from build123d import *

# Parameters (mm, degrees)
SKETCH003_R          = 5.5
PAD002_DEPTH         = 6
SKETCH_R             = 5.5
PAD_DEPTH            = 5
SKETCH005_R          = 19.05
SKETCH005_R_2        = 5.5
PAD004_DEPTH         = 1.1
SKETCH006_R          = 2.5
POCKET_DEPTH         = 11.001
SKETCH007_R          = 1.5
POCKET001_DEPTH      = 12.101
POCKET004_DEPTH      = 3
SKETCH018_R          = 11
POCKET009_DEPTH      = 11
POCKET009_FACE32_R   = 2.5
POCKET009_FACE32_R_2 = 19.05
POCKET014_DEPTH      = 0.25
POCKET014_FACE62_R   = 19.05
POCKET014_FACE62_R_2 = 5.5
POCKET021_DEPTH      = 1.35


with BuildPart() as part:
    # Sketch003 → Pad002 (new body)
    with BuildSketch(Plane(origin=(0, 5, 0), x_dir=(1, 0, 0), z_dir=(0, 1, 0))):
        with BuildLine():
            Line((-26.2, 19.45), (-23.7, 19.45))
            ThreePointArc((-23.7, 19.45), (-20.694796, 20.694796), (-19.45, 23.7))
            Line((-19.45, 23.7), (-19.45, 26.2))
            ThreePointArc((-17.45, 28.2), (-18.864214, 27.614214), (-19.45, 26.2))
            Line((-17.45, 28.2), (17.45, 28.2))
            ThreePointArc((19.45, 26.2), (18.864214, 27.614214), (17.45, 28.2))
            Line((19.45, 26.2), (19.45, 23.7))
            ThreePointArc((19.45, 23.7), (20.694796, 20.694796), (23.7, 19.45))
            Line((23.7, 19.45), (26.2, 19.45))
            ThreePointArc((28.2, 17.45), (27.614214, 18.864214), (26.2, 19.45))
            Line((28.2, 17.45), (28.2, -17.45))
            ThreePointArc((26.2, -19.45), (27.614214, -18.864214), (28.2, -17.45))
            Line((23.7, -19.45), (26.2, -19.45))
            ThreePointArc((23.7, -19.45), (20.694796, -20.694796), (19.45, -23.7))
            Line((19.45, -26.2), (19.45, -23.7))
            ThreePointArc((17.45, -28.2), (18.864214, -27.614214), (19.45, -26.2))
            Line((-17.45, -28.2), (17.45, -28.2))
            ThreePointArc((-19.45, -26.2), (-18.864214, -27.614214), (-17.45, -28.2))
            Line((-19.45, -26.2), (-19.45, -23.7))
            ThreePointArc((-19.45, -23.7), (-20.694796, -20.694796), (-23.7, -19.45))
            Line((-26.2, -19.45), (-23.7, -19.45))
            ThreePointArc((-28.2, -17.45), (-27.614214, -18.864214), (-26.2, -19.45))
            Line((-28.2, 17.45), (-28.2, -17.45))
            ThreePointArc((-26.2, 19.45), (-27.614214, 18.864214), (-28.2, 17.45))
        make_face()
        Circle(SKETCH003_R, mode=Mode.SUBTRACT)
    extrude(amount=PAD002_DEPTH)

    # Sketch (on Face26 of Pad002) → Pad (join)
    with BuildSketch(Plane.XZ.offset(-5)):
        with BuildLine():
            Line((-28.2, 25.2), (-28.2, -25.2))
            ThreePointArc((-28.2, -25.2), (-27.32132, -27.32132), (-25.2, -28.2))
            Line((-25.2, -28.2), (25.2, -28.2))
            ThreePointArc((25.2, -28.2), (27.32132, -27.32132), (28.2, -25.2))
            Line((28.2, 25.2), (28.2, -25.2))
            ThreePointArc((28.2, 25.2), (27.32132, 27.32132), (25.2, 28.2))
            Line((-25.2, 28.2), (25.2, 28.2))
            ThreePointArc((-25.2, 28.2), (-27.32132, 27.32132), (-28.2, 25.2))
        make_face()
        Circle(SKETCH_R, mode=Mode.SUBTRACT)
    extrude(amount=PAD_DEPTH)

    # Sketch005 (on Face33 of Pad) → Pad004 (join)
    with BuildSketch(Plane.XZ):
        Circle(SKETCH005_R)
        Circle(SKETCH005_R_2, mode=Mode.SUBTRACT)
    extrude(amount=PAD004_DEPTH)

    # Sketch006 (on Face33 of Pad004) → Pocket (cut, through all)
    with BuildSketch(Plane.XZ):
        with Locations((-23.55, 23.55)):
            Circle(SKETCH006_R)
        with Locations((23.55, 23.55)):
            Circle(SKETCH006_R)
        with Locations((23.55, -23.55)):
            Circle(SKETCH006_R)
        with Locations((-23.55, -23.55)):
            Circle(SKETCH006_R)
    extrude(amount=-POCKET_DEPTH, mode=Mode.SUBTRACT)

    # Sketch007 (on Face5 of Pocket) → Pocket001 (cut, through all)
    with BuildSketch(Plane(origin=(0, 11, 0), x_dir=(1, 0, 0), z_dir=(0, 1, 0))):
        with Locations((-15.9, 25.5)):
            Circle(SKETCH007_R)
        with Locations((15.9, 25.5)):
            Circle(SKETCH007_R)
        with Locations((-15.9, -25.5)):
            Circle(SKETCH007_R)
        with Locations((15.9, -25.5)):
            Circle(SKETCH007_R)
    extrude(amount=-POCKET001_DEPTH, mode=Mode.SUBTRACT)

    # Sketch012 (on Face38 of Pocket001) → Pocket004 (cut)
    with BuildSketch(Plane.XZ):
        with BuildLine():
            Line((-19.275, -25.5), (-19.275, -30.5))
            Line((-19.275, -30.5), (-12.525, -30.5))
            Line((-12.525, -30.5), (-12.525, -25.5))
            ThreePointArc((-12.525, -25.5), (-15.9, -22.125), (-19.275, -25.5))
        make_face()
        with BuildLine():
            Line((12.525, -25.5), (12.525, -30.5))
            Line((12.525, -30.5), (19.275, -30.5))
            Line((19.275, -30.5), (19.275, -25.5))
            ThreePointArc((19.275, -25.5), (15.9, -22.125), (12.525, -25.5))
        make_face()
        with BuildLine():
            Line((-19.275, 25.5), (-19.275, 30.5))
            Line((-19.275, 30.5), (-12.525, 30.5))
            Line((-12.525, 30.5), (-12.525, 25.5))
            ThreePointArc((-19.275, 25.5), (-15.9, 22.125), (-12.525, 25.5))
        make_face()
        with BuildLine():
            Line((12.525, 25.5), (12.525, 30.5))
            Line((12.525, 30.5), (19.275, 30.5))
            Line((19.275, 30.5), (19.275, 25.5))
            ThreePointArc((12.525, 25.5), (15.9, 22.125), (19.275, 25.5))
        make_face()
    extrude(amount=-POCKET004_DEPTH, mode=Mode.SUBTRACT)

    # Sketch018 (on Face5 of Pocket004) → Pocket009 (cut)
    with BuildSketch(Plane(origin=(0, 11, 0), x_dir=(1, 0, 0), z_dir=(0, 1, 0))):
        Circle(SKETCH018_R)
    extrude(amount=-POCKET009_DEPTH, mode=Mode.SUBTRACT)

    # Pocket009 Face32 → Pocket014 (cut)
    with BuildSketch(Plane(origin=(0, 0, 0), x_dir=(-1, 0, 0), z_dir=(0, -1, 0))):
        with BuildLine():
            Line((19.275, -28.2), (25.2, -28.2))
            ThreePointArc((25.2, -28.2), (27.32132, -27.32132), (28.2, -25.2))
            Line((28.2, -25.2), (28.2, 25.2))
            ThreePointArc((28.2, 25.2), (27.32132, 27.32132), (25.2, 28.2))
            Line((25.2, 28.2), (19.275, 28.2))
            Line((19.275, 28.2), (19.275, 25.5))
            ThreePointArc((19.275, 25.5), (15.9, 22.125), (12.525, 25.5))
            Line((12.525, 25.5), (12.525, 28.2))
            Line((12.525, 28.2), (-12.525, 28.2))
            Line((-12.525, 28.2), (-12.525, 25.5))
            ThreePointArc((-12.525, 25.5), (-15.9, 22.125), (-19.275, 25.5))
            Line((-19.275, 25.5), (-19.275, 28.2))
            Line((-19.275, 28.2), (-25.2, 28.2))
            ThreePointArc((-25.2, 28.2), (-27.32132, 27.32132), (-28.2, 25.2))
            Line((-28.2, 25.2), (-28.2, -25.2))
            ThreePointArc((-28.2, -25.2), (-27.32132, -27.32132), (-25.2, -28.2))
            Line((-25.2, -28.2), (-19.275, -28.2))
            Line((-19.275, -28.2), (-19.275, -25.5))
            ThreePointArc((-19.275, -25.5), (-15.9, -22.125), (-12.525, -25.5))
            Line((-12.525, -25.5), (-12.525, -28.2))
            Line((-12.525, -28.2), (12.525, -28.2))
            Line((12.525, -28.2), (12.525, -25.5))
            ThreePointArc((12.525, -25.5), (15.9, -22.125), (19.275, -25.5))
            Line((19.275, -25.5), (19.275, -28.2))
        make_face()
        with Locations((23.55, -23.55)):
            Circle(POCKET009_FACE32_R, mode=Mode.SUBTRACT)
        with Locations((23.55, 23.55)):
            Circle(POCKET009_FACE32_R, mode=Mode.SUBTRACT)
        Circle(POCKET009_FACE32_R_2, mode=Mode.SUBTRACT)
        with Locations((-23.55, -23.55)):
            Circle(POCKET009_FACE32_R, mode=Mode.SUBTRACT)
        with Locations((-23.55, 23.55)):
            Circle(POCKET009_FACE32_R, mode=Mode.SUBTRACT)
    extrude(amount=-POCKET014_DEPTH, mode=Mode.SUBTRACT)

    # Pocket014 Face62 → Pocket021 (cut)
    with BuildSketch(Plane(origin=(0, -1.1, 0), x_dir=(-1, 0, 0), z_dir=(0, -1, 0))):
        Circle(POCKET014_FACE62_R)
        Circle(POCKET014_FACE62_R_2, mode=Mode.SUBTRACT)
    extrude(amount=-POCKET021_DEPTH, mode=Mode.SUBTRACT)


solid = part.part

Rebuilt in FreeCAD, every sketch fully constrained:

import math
import FreeCAD as App
import Part
import Sketcher

doc = App.newDocument("Part")
params = doc.addObject("Spreadsheet::Sheet", "Params")
for row, (alias, value) in enumerate([
    ("sketch1_diameter", "11 mm"),
    ("sketch1_radius", "1.999999 mm"),
    ("sketch1_radius2", "4.249999 mm"),
    ("sketch1_width", "2.5 mm"),
    ("sketch1_width2", "34.9 mm"),
    ("pad1_length", "6 mm"),
    ("sketch2_diameter", "11 mm"),
    ("sketch2_radius", "3.000001 mm"),
    ("sketch2_width", "50.4 mm"),
    ("pad2_length", "5 mm"),
    ("sketch3_diameter", "11 mm"),
    ("sketch3_diameter2", "38.1 mm"),
    ("pad3_length", "1.1 mm"),
    ("sketch4_diameter", "5 mm"),
    ("sketch5_diameter", "3 mm"),
    ("sketch6_height", "5 mm"),
    ("pocket3_length", "3 mm"),
    ("sketch7_diameter", "22 mm"),
    ("pocket4_length", "11 mm"),
    ("sketch8_diameter", "5 mm"),
    ("sketch8_radius", "3.000001 mm"),
    ("sketch8_diameter2", "38.1 mm"),
    ("sketch8_height", "50.4 mm"),
    ("sketch8_height2", "2.7 mm"),
    ("pocket5_length", "0.25 mm"),
    ("sketch9_diameter", "11 mm"),
    ("sketch9_diameter2", "38.1 mm"),
    ("pocket6_length", "1.35 mm"),
], start=1):
    params.set(f"A{row}", alias)
    params.set(f"B{row}", "=" + value)
    params.setAlias(f"B{row}", alias)

body = doc.addObject("PartDesign::Body", "Body")

sketch1 = body.newObject("Sketcher::SketchObject", "Sketch")
sketch1.AttachmentSupport = (doc.getObject("XZ_Plane"), [""])
sketch1.MapMode = "FlatFace"
sketch1.AttachmentOffset = App.Placement(App.Vector(0, 0, -5), App.Rotation())
sketch1.addGeometry([
    Part.LineSegment(App.Vector(-23.7, -19.45, 0), App.Vector(-26.2, -19.45, 0)),
    Part.ArcOfCircle(Part.Circle(App.Vector(-26.200001, -17.450001, 0), App.Vector(0, 0, 1), 1.999999), math.radians(179.999957), math.radians(270.000043)),
    Part.LineSegment(App.Vector(-28.2, -17.45, 0), App.Vector(-28.2, 17.45, 0)),
    Part.ArcOfCircle(Part.Circle(App.Vector(-26.200001, 17.450001, 0), App.Vector(0, 0, 1), 1.999999), math.radians(89.999957), math.radians(180.000043)),
    Part.LineSegment(App.Vector(-26.2, 19.45, 0), App.Vector(-23.7, 19.45, 0)),
    Part.ArcOfCircle(Part.Circle(App.Vector(-23.699999, 23.699999, 0), App.Vector(0, 0, 1), 4.249999), math.radians(-90.000008), math.radians(0.000008)),
    Part.LineSegment(App.Vector(-19.45, 23.7, 0), App.Vector(-19.45, 26.2, 0)),
    Part.ArcOfCircle(Part.Circle(App.Vector(-17.450001, 26.200001, 0), App.Vector(0, 0, 1), 1.999999), math.radians(89.999957), math.radians(180.000043)),
    Part.LineSegment(App.Vector(-17.45, 28.2, 0), App.Vector(17.45, 28.2, 0)),
    Part.ArcOfCircle(Part.Circle(App.Vector(17.450001, 26.200001, 0), App.Vector(0, 0, 1), 1.999999), math.radians(-0.000043), math.radians(90.000043)),
    Part.LineSegment(App.Vector(19.45, 26.2, 0), App.Vector(19.45, 23.7, 0)),
    Part.ArcOfCircle(Part.Circle(App.Vector(23.699999, 23.699999, 0), App.Vector(0, 0, 1), 4.249999), math.radians(179.999992), math.radians(270.000008)),
    Part.LineSegment(App.Vector(23.7, 19.45, 0), App.Vector(26.2, 19.45, 0)),
    Part.ArcOfCircle(Part.Circle(App.Vector(26.200001, 17.450001, 0), App.Vector(0, 0, 1), 1.999999), math.radians(-0.000043), math.radians(90.000043)),
    Part.LineSegment(App.Vector(28.2, 17.45, 0), App.Vector(28.2, -17.45, 0)),
    Part.ArcOfCircle(Part.Circle(App.Vector(26.200001, -17.450001, 0), App.Vector(0, 0, 1), 1.999999), math.radians(-90.000043), math.radians(0.000043)),
    Part.LineSegment(App.Vector(26.2, -19.45, 0), App.Vector(23.7, -19.45, 0)),
    Part.ArcOfCircle(Part.Circle(App.Vector(23.699999, -23.699999, 0), App.Vector(0, 0, 1), 4.249999), math.radians(89.999992), math.radians(180.000008)),
    Part.LineSegment(App.Vector(19.45, -23.7, 0), App.Vector(19.45, -26.2, 0)),
    Part.ArcOfCircle(Part.Circle(App.Vector(17.450001, -26.200001, 0), App.Vector(0, 0, 1), 1.999999), math.radians(-90.000043), math.radians(0.000043)),
    Part.LineSegment(App.Vector(17.45, -28.2, 0), App.Vector(-17.45, -28.2, 0)),
    Part.ArcOfCircle(Part.Circle(App.Vector(-17.450001, -26.200001, 0), App.Vector(0, 0, 1), 1.999999), math.radians(179.999957), math.radians(270.000043)),
    Part.LineSegment(App.Vector(-19.45, -26.2, 0), App.Vector(-19.45, -23.7, 0)),
    Part.ArcOfCircle(Part.Circle(App.Vector(-23.699999, -23.699999, 0), App.Vector(0, 0, 1), 4.249999), math.radians(-0.000008), math.radians(90.000008)),
    Part.Circle(App.Vector(0, 0, 0), App.Vector(0, 0, 1), 5.5),
], False)
sketch1.addConstraint([
    Sketcher.Constraint("Tangent", 0, 2, 1, 2),
    Sketcher.Constraint("Tangent", 1, 1, 2, 1),
    Sketcher.Constraint("Tangent", 2, 2, 3, 2),
    Sketcher.Constraint("Tangent", 3, 1, 4, 1),
    Sketcher.Constraint("Tangent", 4, 2, 5, 1),
    Sketcher.Constraint("Tangent", 5, 2, 6, 1),
    Sketcher.Constraint("Tangent", 6, 2, 7, 2),
    Sketcher.Constraint("Tangent", 7, 1, 8, 1),
    Sketcher.Constraint("Tangent", 8, 2, 9, 2),
    Sketcher.Constraint("Tangent", 9, 1, 10, 1),
    Sketcher.Constraint("Tangent", 10, 2, 11, 1),
    Sketcher.Constraint("Tangent", 11, 2, 12, 1),
    Sketcher.Constraint("Tangent", 12, 2, 13, 2),
    Sketcher.Constraint("Tangent", 13, 1, 14, 1),
    Sketcher.Constraint("Tangent", 14, 2, 15, 2),
    Sketcher.Constraint("Tangent", 15, 1, 16, 1),
    Sketcher.Constraint("Tangent", 16, 2, 17, 1),
    Sketcher.Constraint("Tangent", 17, 2, 18, 1),
    Sketcher.Constraint("Tangent", 18, 2, 19, 2),
    Sketcher.Constraint("Tangent", 19, 1, 20, 1),
    Sketcher.Constraint("Tangent", 20, 2, 21, 2),
    Sketcher.Constraint("Tangent", 21, 1, 22, 1),
    Sketcher.Constraint("Tangent", 22, 2, 23, 1),
    Sketcher.Constraint("Tangent", 23, 2, 0, 1),
    Sketcher.Constraint("Horizontal", 0),
    Sketcher.Constraint("Vertical", 2),
    Sketcher.Constraint("Horizontal", 4),
    Sketcher.Constraint("Vertical", 6),
    Sketcher.Constraint("Horizontal", 8),
    Sketcher.Constraint("Vertical", 10),
    Sketcher.Constraint("Horizontal", 12),
    Sketcher.Constraint("Vertical", 14),
    Sketcher.Constraint("Horizontal", 16),
    Sketcher.Constraint("Vertical", 18),
    Sketcher.Constraint("Horizontal", 20),
    Sketcher.Constraint("Vertical", 22),
    Sketcher.Constraint("Coincident", 24, 3, -1, 1),
    Sketcher.Constraint("Equal", 1, 3),
    Sketcher.Constraint("Equal", 3, 7),
    Sketcher.Constraint("Equal", 7, 9),
    Sketcher.Constraint("Equal", 5, 11),
    Sketcher.Constraint("Equal", 9, 13),
    Sketcher.Constraint("Equal", 13, 15),
    Sketcher.Constraint("Equal", 11, 17),
    Sketcher.Constraint("Equal", 15, 19),
    Sketcher.Constraint("Equal", 19, 21),
    Sketcher.Constraint("Equal", 17, 23),
    Sketcher.Constraint("Symmetric", 1, 3, 13, 3, -1, 1),
    Sketcher.Constraint("Symmetric", 5, 3, 17, 3, -1, 1),
    Sketcher.Constraint("Symmetric", 9, 3, 21, 3, -1, 1),
    Sketcher.Constraint("Symmetric", 5, 3, 11, 3, -2),
    Sketcher.Constraint("Equal", 20, 2),
    Sketcher.Constraint("Equal", 16, 6),
    Sketcher.Constraint("Diameter", 24, 11.0),
    Sketcher.Constraint("Radius", 1, 1.999999),
    Sketcher.Constraint("Radius", 5, 4.249999),
    Sketcher.Constraint("DistanceX", 0, 2, 0, 1, 2.5),
    Sketcher.Constraint("DistanceX", 8, 1, 8, 2, 34.9),
])
sketch1.setExpression("Constraints[53]", "Params.sketch1_diameter")
sketch1.setExpression("Constraints[54]", "Params.sketch1_radius")
sketch1.setExpression("Constraints[55]", "Params.sketch1_radius2")
sketch1.setExpression("Constraints[56]", "Params.sketch1_width")
sketch1.setExpression("Constraints[57]", "Params.sketch1_width2")
pad1 = body.newObject("PartDesign::Pad", "Pad")
pad1.Profile = sketch1
pad1.setExpression("Length", "Params.pad1_length")
pad1.Reversed = True

sketch2 = body.newObject("Sketcher::SketchObject", "Sketch001")
sketch2.AttachmentSupport = (doc.getObject("XZ_Plane"), [""])
sketch2.MapMode = "FlatFace"
sketch2.AttachmentOffset = App.Placement(App.Vector(0, 0, -5), App.Rotation())
sketch2.addGeometry([
    Part.LineSegment(App.Vector(-28.2, 25.2, 0), App.Vector(-28.2, -25.2, 0)),
    Part.ArcOfCircle(Part.Circle(App.Vector(-25.199999, -25.199999, 0), App.Vector(0, 0, 1), 3.000001), math.radians(-179.999978), math.radians(-90.000022)),
    Part.LineSegment(App.Vector(-25.2, -28.2, 0), App.Vector(25.2, -28.2, 0)),
    Part.ArcOfCircle(Part.Circle(App.Vector(25.199999, -25.199999, 0), App.Vector(0, 0, 1), 3.000001), math.radians(-89.999978), math.radians(-0.000022)),
    Part.LineSegment(App.Vector(28.2, -25.2, 0), App.Vector(28.2, 25.2, 0)),
    Part.ArcOfCircle(Part.Circle(App.Vector(25.199999, 25.199999, 0), App.Vector(0, 0, 1), 3.000001), math.radians(0.000022), math.radians(89.999978)),
    Part.LineSegment(App.Vector(25.2, 28.2, 0), App.Vector(-25.2, 28.2, 0)),
    Part.ArcOfCircle(Part.Circle(App.Vector(-25.199999, 25.199999, 0), App.Vector(0, 0, 1), 3.000001), math.radians(90.000022), math.radians(179.999978)),
    Part.Circle(App.Vector(0, 0, 0), App.Vector(0, 0, 1), 5.5),
], False)
sketch2.addConstraint([
    Sketcher.Constraint("Tangent", 0, 2, 1, 1),
    Sketcher.Constraint("Tangent", 1, 2, 2, 1),
    Sketcher.Constraint("Tangent", 2, 2, 3, 1),
    Sketcher.Constraint("Tangent", 3, 2, 4, 1),
    Sketcher.Constraint("Tangent", 4, 2, 5, 1),
    Sketcher.Constraint("Tangent", 5, 2, 6, 1),
    Sketcher.Constraint("Tangent", 6, 2, 7, 1),
    Sketcher.Constraint("Tangent", 7, 2, 0, 1),
    Sketcher.Constraint("Vertical", 0),
    Sketcher.Constraint("Horizontal", 2),
    Sketcher.Constraint("Vertical", 4),
    Sketcher.Constraint("Horizontal", 6),
    Sketcher.Constraint("Coincident", 8, 3, -1, 1),
    Sketcher.Constraint("Equal", 1, 3),
    Sketcher.Constraint("Equal", 3, 5),
    Sketcher.Constraint("Equal", 5, 7),
    Sketcher.Constraint("Symmetric", 1, 3, 5, 3, -1, 1),
    Sketcher.Constraint("Equal", 6, 0),
    Sketcher.Constraint("Diameter", 8, 11.0),
    Sketcher.Constraint("Radius", 1, 3.000001),
    Sketcher.Constraint("DistanceX", 2, 1, 2, 2, 50.4),
])
sketch2.setExpression("Constraints[18]", "Params.sketch2_diameter")
sketch2.setExpression("Constraints[19]", "Params.sketch2_radius")
sketch2.setExpression("Constraints[20]", "Params.sketch2_width")
pad2 = body.newObject("PartDesign::Pad", "Pad001")
pad2.Profile = sketch2
pad2.setExpression("Length", "Params.pad2_length")

sketch3 = body.newObject("Sketcher::SketchObject", "Sketch002")
sketch3.AttachmentSupport = (doc.getObject("XZ_Plane"), [""])
sketch3.MapMode = "FlatFace"
sketch3.addGeometry([
    Part.Circle(App.Vector(0, 0, 0), App.Vector(0, 0, 1), 19.05),
    Part.Circle(App.Vector(0, 0, 0), App.Vector(0, 0, 1), 5.5),
], False)
sketch3.addConstraint([
    Sketcher.Constraint("Coincident", 0, 3, -1, 1),
    Sketcher.Constraint("Coincident", 1, 3, -1, 1),
    Sketcher.Constraint("Diameter", 1, 11.0),
    Sketcher.Constraint("Diameter", 0, 38.1),
])
sketch3.setExpression("Constraints[2]", "Params.sketch3_diameter")
sketch3.setExpression("Constraints[3]", "Params.sketch3_diameter2")
pad3 = body.newObject("PartDesign::Pad", "Pad002")
pad3.Profile = sketch3
pad3.setExpression("Length", "Params.pad3_length")

sketch4 = body.newObject("Sketcher::SketchObject", "Sketch003")
sketch4.AttachmentSupport = (doc.getObject("XZ_Plane"), [""])
sketch4.MapMode = "FlatFace"
sketch4.addGeometry([
    Part.Circle(App.Vector(-23.55, 23.55, 0), App.Vector(0, 0, 1), 2.5),
    Part.Circle(App.Vector(23.55, 23.55, 0), App.Vector(0, 0, 1), 2.5),
    Part.Circle(App.Vector(23.55, -23.55, 0), App.Vector(0, 0, 1), 2.5),
    Part.Circle(App.Vector(-23.55, -23.55, 0), App.Vector(0, 0, 1), 2.5),
], False)
sketch4.addConstraint([
    Sketcher.Constraint("Equal", 0, 1),
    Sketcher.Constraint("Equal", 1, 2),
    Sketcher.Constraint("Equal", 2, 3),
    Sketcher.Constraint("Symmetric", 0, 3, 2, 3, -1, 1),
    Sketcher.Constraint("Symmetric", 1, 3, 3, 3, -1, 1),
    Sketcher.Constraint("Symmetric", 0, 3, 1, 3, -2),
    Sketcher.Constraint("Diameter", 0, 5.0),
    Sketcher.Constraint("DistanceX", 0, 3, 1, 3, 47.1),
    Sketcher.Constraint("DistanceY", 2, 3, 1, 3, 47.1),
])
sketch4.setExpression("Constraints[6]", "Params.sketch4_diameter")
pocket1 = body.newObject("PartDesign::Pocket", "Pocket")
pocket1.Profile = sketch4
pocket1.Type = "ThroughAll"

sketch5 = body.newObject("Sketcher::SketchObject", "Sketch004")
sketch5.AttachmentSupport = (doc.getObject("XZ_Plane"), [""])
sketch5.MapMode = "FlatFace"
sketch5.AttachmentOffset = App.Placement(App.Vector(0, 0, -11), App.Rotation())
sketch5.addGeometry([
    Part.Circle(App.Vector(-15.9, -25.5, 0), App.Vector(0, 0, 1), 1.5),
    Part.Circle(App.Vector(15.9, -25.5, 0), App.Vector(0, 0, 1), 1.5),
    Part.Circle(App.Vector(-15.9, 25.5, 0), App.Vector(0, 0, 1), 1.5),
    Part.Circle(App.Vector(15.9, 25.5, 0), App.Vector(0, 0, 1), 1.5),
], False)
sketch5.addConstraint([
    Sketcher.Constraint("Equal", 0, 1),
    Sketcher.Constraint("Equal", 1, 2),
    Sketcher.Constraint("Equal", 2, 3),
    Sketcher.Constraint("Symmetric", 1, 3, 2, 3, -1, 1),
    Sketcher.Constraint("Symmetric", 0, 3, 3, 3, -1, 1),
    Sketcher.Constraint("Symmetric", 0, 3, 1, 3, -2),
    Sketcher.Constraint("Diameter", 0, 3.0),
    Sketcher.Constraint("DistanceY", 0, 3, 2, 3, 51.0),
    Sketcher.Constraint("DistanceX", 0, 3, -1, 1, 15.9),
])
sketch5.setExpression("Constraints[6]", "Params.sketch5_diameter")
pocket2 = body.newObject("PartDesign::Pocket", "Pocket001")
pocket2.Profile = sketch5
pocket2.Type = "ThroughAll"
pocket2.Reversed = True

sketch6 = body.newObject("Sketcher::SketchObject", "Sketch005")
sketch6.AttachmentSupport = (doc.getObject("XZ_Plane"), [""])
sketch6.MapMode = "FlatFace"
sketch6.addGeometry([
    Part.LineSegment(App.Vector(-19.275, -25.5, 0), App.Vector(-19.275, -30.5, 0)),
    Part.LineSegment(App.Vector(-19.275, -30.5, 0), App.Vector(-12.525, -30.5, 0)),
    Part.LineSegment(App.Vector(-12.525, -30.5, 0), App.Vector(-12.525, -25.5, 0)),
    Part.ArcOfCircle(Part.Circle(App.Vector(-15.9, -25.5, 0), App.Vector(0, 0, 1), 3.375), math.radians(0), math.radians(180)),
    Part.LineSegment(App.Vector(12.525, -25.5, 0), App.Vector(12.525, -30.5, 0)),
    Part.LineSegment(App.Vector(12.525, -30.5, 0), App.Vector(19.275, -30.5, 0)),
    Part.LineSegment(App.Vector(19.275, -30.5, 0), App.Vector(19.275, -25.5, 0)),
    Part.ArcOfCircle(Part.Circle(App.Vector(15.9, -25.5, 0), App.Vector(0, 0, 1), 3.375), math.radians(0), math.radians(180)),
    Part.LineSegment(App.Vector(-19.275, 30.5, 0), App.Vector(-19.275, 25.5, 0)),
    Part.ArcOfCircle(Part.Circle(App.Vector(-15.9, 25.5, 0), App.Vector(0, 0, 1), 3.375), math.radians(180), math.radians(360)),
    Part.LineSegment(App.Vector(-12.525, 25.5, 0), App.Vector(-12.525, 30.5, 0)),
    Part.LineSegment(App.Vector(-12.525, 30.5, 0), App.Vector(-19.275, 30.5, 0)),
    Part.LineSegment(App.Vector(12.525, 30.5, 0), App.Vector(12.525, 25.5, 0)),
    Part.ArcOfCircle(Part.Circle(App.Vector(15.9, 25.5, 0), App.Vector(0, 0, 1), 3.375), math.radians(180), math.radians(360)),
    Part.LineSegment(App.Vector(19.275, 25.5, 0), App.Vector(19.275, 30.5, 0)),
    Part.LineSegment(App.Vector(19.275, 30.5, 0), App.Vector(12.525, 30.5, 0)),
], False)
sketch6.addConstraint([
    Sketcher.Constraint("Coincident", 0, 2, 1, 1),
    Sketcher.Constraint("Coincident", 1, 2, 2, 1),
    Sketcher.Constraint("Tangent", 2, 2, 3, 1),
    Sketcher.Constraint("Tangent", 3, 2, 0, 1),
    Sketcher.Constraint("Coincident", 4, 2, 5, 1),
    Sketcher.Constraint("Coincident", 5, 2, 6, 1),
    Sketcher.Constraint("Tangent", 6, 2, 7, 1),
    Sketcher.Constraint("Tangent", 7, 2, 4, 1),
    Sketcher.Constraint("Tangent", 8, 2, 9, 1),
    Sketcher.Constraint("Tangent", 9, 2, 10, 1),
    Sketcher.Constraint("Coincident", 10, 2, 11, 1),
    Sketcher.Constraint("Coincident", 11, 2, 8, 1),
    Sketcher.Constraint("Tangent", 12, 2, 13, 1),
    Sketcher.Constraint("Tangent", 13, 2, 14, 1),
    Sketcher.Constraint("Coincident", 14, 2, 15, 1),
    Sketcher.Constraint("Coincident", 15, 2, 12, 1),
    Sketcher.Constraint("Vertical", 0),
    Sketcher.Constraint("Horizontal", 1),
    Sketcher.Constraint("Vertical", 2),
    Sketcher.Constraint("Vertical", 4),
    Sketcher.Constraint("Horizontal", 5),
    Sketcher.Constraint("Vertical", 6),
    Sketcher.Constraint("Vertical", 8),
    Sketcher.Constraint("Vertical", 10),
    Sketcher.Constraint("Horizontal", 11),
    Sketcher.Constraint("Vertical", 12),
    Sketcher.Constraint("Vertical", 14),
    Sketcher.Constraint("Horizontal", 15),
    Sketcher.Constraint("Equal", 3, 7),
    Sketcher.Constraint("Equal", 7, 9),
    Sketcher.Constraint("Equal", 9, 13),
    Sketcher.Constraint("Symmetric", 7, 3, 9, 3, -1, 1),
    Sketcher.Constraint("Symmetric", 3, 3, 13, 3, -1, 1),
    Sketcher.Constraint("Symmetric", 3, 3, 7, 3, -2),
    Sketcher.Constraint("Horizontal", 1, 2, 4, 2),
    Sketcher.Constraint("Horizontal", 11, 2, 14, 2),
    Sketcher.Constraint("Equal", 6, 8),
    Sketcher.Constraint("DistanceY", 0, 2, 0, 1, 5.0),
    Sketcher.Constraint("Radius", 3, 3.375),
    Sketcher.Constraint("DistanceY", 3, 3, 9, 3, 51.0),
    Sketcher.Constraint("DistanceX", 3, 3, -1, 1, 15.9),
])
sketch6.setExpression("Constraints[37]", "Params.sketch6_height")
pocket3 = body.newObject("PartDesign::Pocket", "Pocket002")
pocket3.Profile = sketch6
pocket3.setExpression("Length", "Params.pocket3_length")

sketch7 = body.newObject("Sketcher::SketchObject", "Sketch006")
sketch7.AttachmentSupport = (doc.getObject("XZ_Plane"), [""])
sketch7.MapMode = "FlatFace"
sketch7.AttachmentOffset = App.Placement(App.Vector(0, 0, -11), App.Rotation())
sketch7.addGeometry(Part.Circle(App.Vector(0, 0, 0), App.Vector(0, 0, 1), 11), False)
sketch7.addConstraint([
    Sketcher.Constraint("Coincident", 0, 3, -1, 1),
    Sketcher.Constraint("Diameter", 0, 22.0),
])
sketch7.setExpression("Constraints[1]", "Params.sketch7_diameter")
pocket4 = body.newObject("PartDesign::Pocket", "Pocket003")
pocket4.Profile = sketch7
pocket4.setExpression("Length", "Params.pocket4_length")
pocket4.Reversed = True

sketch8 = body.newObject("Sketcher::SketchObject", "Sketch007")
sketch8.AttachmentSupport = (doc.getObject("XZ_Plane"), [""])
sketch8.MapMode = "FlatFace"
sketch8.addGeometry([
    Part.LineSegment(App.Vector(-19.275, 28.2, 0), App.Vector(-25.2, 28.2, 0)),
    Part.ArcOfCircle(Part.Circle(App.Vector(-25.199999, 25.199999, 0), App.Vector(0, 0, 1), 3.000001), math.radians(90.000022), math.radians(179.999978)),
    Part.LineSegment(App.Vector(-28.2, 25.2, 0), App.Vector(-28.2, -25.2, 0)),
    Part.ArcOfCircle(Part.Circle(App.Vector(-25.199999, -25.199999, 0), App.Vector(0, 0, 1), 3.000001), math.radians(-179.999978), math.radians(-90.000022)),
    Part.LineSegment(App.Vector(-25.2, -28.2, 0), App.Vector(-19.275, -28.2, 0)),
    Part.LineSegment(App.Vector(-19.275, -28.2, 0), App.Vector(-19.275, -25.5, 0)),
    Part.ArcOfCircle(Part.Circle(App.Vector(-15.9, -25.5, 0), App.Vector(0, 0, 1), 3.375), math.radians(0), math.radians(180)),
    Part.LineSegment(App.Vector(-12.525, -25.5, 0), App.Vector(-12.525, -28.2, 0)),
    Part.LineSegment(App.Vector(-12.525, -28.2, 0), App.Vector(12.525, -28.2, 0)),
    Part.LineSegment(App.Vector(12.525, -28.2, 0), App.Vector(12.525, -25.5, 0)),
    Part.ArcOfCircle(Part.Circle(App.Vector(15.9, -25.5, 0), App.Vector(0, 0, 1), 3.375), math.radians(0), math.radians(180)),
    Part.LineSegment(App.Vector(19.275, -25.5, 0), App.Vector(19.275, -28.2, 0)),
    Part.LineSegment(App.Vector(19.275, -28.2, 0), App.Vector(25.2, -28.2, 0)),
    Part.ArcOfCircle(Part.Circle(App.Vector(25.199999, -25.199999, 0), App.Vector(0, 0, 1), 3.000001), math.radians(-89.999978), math.radians(-0.000022)),
    Part.LineSegment(App.Vector(28.2, -25.2, 0), App.Vector(28.2, 25.2, 0)),
    Part.ArcOfCircle(Part.Circle(App.Vector(25.199999, 25.199999, 0), App.Vector(0, 0, 1), 3.000001), math.radians(0.000022), math.radians(89.999978)),
    Part.LineSegment(App.Vector(25.2, 28.2, 0), App.Vector(19.275, 28.2, 0)),
    Part.LineSegment(App.Vector(19.275, 28.2, 0), App.Vector(19.275, 25.5, 0)),
    Part.ArcOfCircle(Part.Circle(App.Vector(15.9, 25.5, 0), App.Vector(0, 0, 1), 3.375), math.radians(180), math.radians(360)),
    Part.LineSegment(App.Vector(12.525, 25.5, 0), App.Vector(12.525, 28.2, 0)),
    Part.LineSegment(App.Vector(12.525, 28.2, 0), App.Vector(-12.525, 28.2, 0)),
    Part.LineSegment(App.Vector(-12.525, 28.2, 0), App.Vector(-12.525, 25.5, 0)),
    Part.ArcOfCircle(Part.Circle(App.Vector(-15.9, 25.5, 0), App.Vector(0, 0, 1), 3.375), math.radians(180), math.radians(360)),
    Part.LineSegment(App.Vector(-19.275, 25.5, 0), App.Vector(-19.275, 28.2, 0)),
    Part.Circle(App.Vector(23.55, 23.55, 0), App.Vector(0, 0, 1), 2.5),
    Part.Circle(App.Vector(-23.55, 23.55, 0), App.Vector(0, 0, 1), 2.5),
    Part.Circle(App.Vector(23.55, -23.55, 0), App.Vector(0, 0, 1), 2.5),
    Part.Circle(App.Vector(0, 0, 0), App.Vector(0, 0, 1), 19.05),
    Part.Circle(App.Vector(-23.55, -23.55, 0), App.Vector(0, 0, 1), 2.5),
], False)
sketch8.addConstraint([
    Sketcher.Constraint("Tangent", 0, 2, 1, 1),
    Sketcher.Constraint("Tangent", 1, 2, 2, 1),
    Sketcher.Constraint("Tangent", 2, 2, 3, 1),
    Sketcher.Constraint("Tangent", 3, 2, 4, 1),
    Sketcher.Constraint("Coincident", 4, 2, 5, 1),
    Sketcher.Constraint("Tangent", 5, 2, 6, 2),
    Sketcher.Constraint("Tangent", 6, 1, 7, 1),
    Sketcher.Constraint("Coincident", 7, 2, 8, 1),
    Sketcher.Constraint("Coincident", 8, 2, 9, 1),
    Sketcher.Constraint("Tangent", 9, 2, 10, 2),
    Sketcher.Constraint("Tangent", 10, 1, 11, 1),
    Sketcher.Constraint("Coincident", 11, 2, 12, 1),
    Sketcher.Constraint("Tangent", 12, 2, 13, 1),
    Sketcher.Constraint("Tangent", 13, 2, 14, 1),
    Sketcher.Constraint("Tangent", 14, 2, 15, 1),
    Sketcher.Constraint("Tangent", 15, 2, 16, 1),
    Sketcher.Constraint("Coincident", 16, 2, 17, 1),
    Sketcher.Constraint("Tangent", 17, 2, 18, 2),
    Sketcher.Constraint("Tangent", 18, 1, 19, 1),
    Sketcher.Constraint("Coincident", 19, 2, 20, 1),
    Sketcher.Constraint("Coincident", 20, 2, 21, 1),
    Sketcher.Constraint("Tangent", 21, 2, 22, 2),
    Sketcher.Constraint("Tangent", 22, 1, 23, 1),
    Sketcher.Constraint("Coincident", 23, 2, 0, 1),
    Sketcher.Constraint("Horizontal", 0),
    Sketcher.Constraint("Vertical", 2),
    Sketcher.Constraint("Horizontal", 4),
    Sketcher.Constraint("Vertical", 5),
    Sketcher.Constraint("Vertical", 7),
    Sketcher.Constraint("Horizontal", 8),
    Sketcher.Constraint("Vertical", 9),
    Sketcher.Constraint("Vertical", 11),
    Sketcher.Constraint("Horizontal", 12),
    Sketcher.Constraint("Vertical", 14),
    Sketcher.Constraint("Horizontal", 16),
    Sketcher.Constraint("Vertical", 17),
    Sketcher.Constraint("Vertical", 19),
    Sketcher.Constraint("Horizontal", 20),
    Sketcher.Constraint("Vertical", 21),
    Sketcher.Constraint("Vertical", 23),
    Sketcher.Constraint("Coincident", 27, 3, -1, 1),
    Sketcher.Constraint("Equal", 1, 3),
    Sketcher.Constraint("Equal", 6, 10),
    Sketcher.Constraint("Equal", 3, 13),
    Sketcher.Constraint("Equal", 13, 15),
    Sketcher.Constraint("Equal", 10, 18),
    Sketcher.Constraint("Equal", 18, 22),
    Sketcher.Constraint("Equal", 24, 25),
    Sketcher.Constraint("Equal", 25, 26),
    Sketcher.Constraint("Equal", 26, 28),
    Sketcher.Constraint("Symmetric", 1, 3, 13, 3, -1, 1),
    Sketcher.Constraint("Symmetric", 6, 3, 18, 3, -1, 1),
    Sketcher.Constraint("Symmetric", 10, 3, 22, 3, -1, 1),
    Sketcher.Constraint("Symmetric", 25, 3, 26, 3, -1, 1),
    Sketcher.Constraint("Symmetric", 24, 3, 28, 3, -1, 1),
    Sketcher.Constraint("Symmetric", 6, 3, 10, 3, -2),
    Sketcher.Constraint("Symmetric", 24, 3, 25, 3, -2),
    Sketcher.Constraint("Horizontal", 3, 3, 13, 3),
    Sketcher.Constraint("Horizontal", 1, 3, 15, 3),
    Sketcher.Constraint("Horizontal", 4, 2, 7, 2),
    Sketcher.Constraint("Horizontal", 16, 2, 19, 2),
    Sketcher.Constraint("Diameter", 24, 5.0),
    Sketcher.Constraint("Radius", 1, 3.000001),
    Sketcher.Constraint("Diameter", 27, 38.1),
    Sketcher.Constraint("DistanceY", 2, 2, 2, 1, 50.4),
    Sketcher.Constraint("DistanceY", 5, 1, 5, 2, 2.7),
    Sketcher.Constraint("Radius", 6, 3.375),
    Sketcher.Constraint("DistanceX", 8, 1, 8, 2, 25.05),
    Sketcher.Constraint("DistanceX", 1, 3, -1, 1, 25.199999),
    Sketcher.Constraint("DistanceX", 25, 3, 24, 3, 47.1),
    Sketcher.Constraint("DistanceY", 26, 3, 24, 3, 47.1),
])
sketch8.setExpression("Constraints[61]", "Params.sketch8_diameter")
sketch8.setExpression("Constraints[62]", "Params.sketch8_radius")
sketch8.setExpression("Constraints[63]", "Params.sketch8_diameter2")
sketch8.setExpression("Constraints[64]", "Params.sketch8_height")
sketch8.setExpression("Constraints[65]", "Params.sketch8_height2")
pocket5 = body.newObject("PartDesign::Pocket", "Pocket004")
pocket5.Profile = sketch8
pocket5.setExpression("Length", "Params.pocket5_length")

sketch9 = body.newObject("Sketcher::SketchObject", "Sketch008")
sketch9.AttachmentSupport = (doc.getObject("XZ_Plane"), [""])
sketch9.MapMode = "FlatFace"
sketch9.AttachmentOffset = App.Placement(App.Vector(0, 0, 1.1), App.Rotation())
sketch9.addGeometry([
    Part.Circle(App.Vector(0, 0, 0), App.Vector(0, 0, 1), 19.05),
    Part.Circle(App.Vector(0, 0, 0), App.Vector(0, 0, 1), 5.5),
], False)
sketch9.addConstraint([
    Sketcher.Constraint("Coincident", 0, 3, -1, 1),
    Sketcher.Constraint("Coincident", 1, 3, -1, 1),
    Sketcher.Constraint("Diameter", 1, 11.0),
    Sketcher.Constraint("Diameter", 0, 38.1),
])
sketch9.setExpression("Constraints[2]", "Params.sketch9_diameter")
sketch9.setExpression("Constraints[3]", "Params.sketch9_diameter2")
pocket6 = body.newObject("PartDesign::Pocket", "Pocket005")
pocket6.Profile = sketch9
pocket6.setExpression("Length", "Params.pocket6_length")

doc.recompute()
